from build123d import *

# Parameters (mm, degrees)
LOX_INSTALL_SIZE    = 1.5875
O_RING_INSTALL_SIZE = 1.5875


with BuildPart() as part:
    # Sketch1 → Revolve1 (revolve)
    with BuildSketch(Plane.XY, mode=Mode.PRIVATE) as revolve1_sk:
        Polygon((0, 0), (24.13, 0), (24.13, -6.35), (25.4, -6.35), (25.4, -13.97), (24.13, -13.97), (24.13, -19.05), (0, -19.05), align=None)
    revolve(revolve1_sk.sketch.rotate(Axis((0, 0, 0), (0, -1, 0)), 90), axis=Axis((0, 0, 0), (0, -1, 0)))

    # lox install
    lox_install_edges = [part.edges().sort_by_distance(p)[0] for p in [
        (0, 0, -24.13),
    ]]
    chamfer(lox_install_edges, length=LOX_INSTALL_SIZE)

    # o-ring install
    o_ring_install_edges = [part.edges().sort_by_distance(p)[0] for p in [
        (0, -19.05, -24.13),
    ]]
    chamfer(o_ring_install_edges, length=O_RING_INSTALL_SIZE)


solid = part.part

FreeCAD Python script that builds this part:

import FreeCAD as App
import Part
import Sketcher

V = App.Vector
Q = App.Units.Quantity


def edges_at(feature, points):
    """Names of the edges that pass closest to the given points."""
    edges = feature.Shape.Edges
    near = lambda p: min(range(len(edges)), key=lambda i: edges[i].distToShape(Part.Vertex(*p))[0])
    return sorted({f"Edge{near(p) + 1}" for p in points})

doc = App.newDocument("Part")
body = doc.addObject("PartDesign::Body", "Body")

# Sketch on XY plane
sketch1 = doc.addObject("Sketcher::SketchObject", "Sketch")
body.addObject(sketch1)
sketch1.AttachmentSupport = (doc.XY_Plane, [""])
sketch1.MapMode = "FlatFace"
sketch1.addGeometry([
    Part.LineSegment(V(24.13, 0, 0), V(0, 0, 0)),  # 0
    Part.LineSegment(V(0, 0, 0), V(0, -19.05, 0)),  # 1
    Part.LineSegment(V(0, -19.05, 0), V(24.13, -19.05, 0)),  # 2
    Part.LineSegment(V(24.13, -19.05, 0), V(24.13, -13.97, 0)),  # 3
    Part.LineSegment(V(24.13, -13.97, 0), V(25.4, -13.97, 0)),  # 4
    Part.LineSegment(V(25.4, -13.97, 0), V(25.4, -6.35, 0)),  # 5
    Part.LineSegment(V(25.4, -6.35, 0), V(24.13, -6.35, 0)),  # 6
    Part.LineSegment(V(24.13, -6.35, 0), V(24.13, 0, 0)),  # 7
], False)
sketch1.addConstraint([
    Sketcher.Constraint("Coincident", 0, 2, 1, 1),
    Sketcher.Constraint("Coincident", 1, 2, 2, 1),
    Sketcher.Constraint("Coincident", 2, 2, 3, 1),
    Sketcher.Constraint("Coincident", 3, 2, 4, 1),
    Sketcher.Constraint("Coincident", 4, 2, 5, 1),
    Sketcher.Constraint("Coincident", 5, 2, 6, 1),
    Sketcher.Constraint("Coincident", 6, 2, 7, 1),
    Sketcher.Constraint("Coincident", 7, 2, 0, 1),
    Sketcher.Constraint("Horizontal", 0),
    Sketcher.Constraint("Vertical", 1),
    Sketcher.Constraint("Horizontal", 2),
    Sketcher.Constraint("Vertical", 3),
    Sketcher.Constraint("Horizontal", 4),
    Sketcher.Constraint("Vertical", 5),
    Sketcher.Constraint("Horizontal", 6),
    Sketcher.Constraint("Vertical", 7),
    Sketcher.Constraint("Coincident", 0, 2, -1, 1),
    Sketcher.Constraint("Vertical", 3, 2, 6, 2),
    Sketcher.Constraint("DistanceY", 3, 1, 3, 2, Q("0.2 in")),
    Sketcher.Constraint("DistanceY", 5, 1, 5, 2, Q("0.3 in")),
    Sketcher.Constraint("DistanceX", -1, 1, 4, 2, Q("1 in")),
    Sketcher.Constraint("DistanceX", 0, 2, 0, 1, Q("0.95 in")),
    Sketcher.Constraint("DistanceY", 1, 2, 1, 1, Q("0.75 in")),
])
revolution = doc.addObject("PartDesign::Revolution", "Revolution")
body.addObject(revolution)
revolution.Profile = sketch1
revolution.ReferenceAxis = (sketch1, ["V_Axis"])
revolution.Angle = 360
doc.recompute()

chamfer = doc.addObject("PartDesign::Chamfer", "Chamfer")
body.addObject(chamfer)
chamfer.Base = (revolution, edges_at(revolution, [(0, 0, -24.13)]))
chamfer.Size = Q("0.0625 in")
doc.recompute()

chamfer2 = doc.addObject("PartDesign::Chamfer", "Chamfer001")
body.addObject(chamfer2)
chamfer2.Base = (chamfer, edges_at(chamfer, [(0, -19.05, -24.13)]))
chamfer2.Size = Q("0.0625 in")

doc.recompute()
